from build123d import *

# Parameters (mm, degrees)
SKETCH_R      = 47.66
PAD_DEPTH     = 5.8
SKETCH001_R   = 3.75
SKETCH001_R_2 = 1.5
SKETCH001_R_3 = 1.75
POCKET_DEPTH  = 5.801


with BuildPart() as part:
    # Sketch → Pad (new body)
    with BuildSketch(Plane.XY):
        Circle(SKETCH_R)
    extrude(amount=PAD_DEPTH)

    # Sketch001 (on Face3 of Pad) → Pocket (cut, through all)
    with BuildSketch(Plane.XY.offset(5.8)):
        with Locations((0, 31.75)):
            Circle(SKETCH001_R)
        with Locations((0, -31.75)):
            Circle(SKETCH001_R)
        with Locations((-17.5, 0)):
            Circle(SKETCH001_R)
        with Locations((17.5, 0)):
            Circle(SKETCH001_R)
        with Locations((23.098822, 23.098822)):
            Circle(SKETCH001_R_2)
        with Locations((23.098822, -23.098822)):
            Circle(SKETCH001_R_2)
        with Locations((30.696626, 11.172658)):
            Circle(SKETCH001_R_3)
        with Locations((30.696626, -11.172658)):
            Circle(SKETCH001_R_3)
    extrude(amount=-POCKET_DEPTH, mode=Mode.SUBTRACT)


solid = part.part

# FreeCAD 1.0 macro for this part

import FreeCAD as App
import Part
import Sketcher

doc = App.newDocument("Part")
body = doc.addObject("PartDesign::Body", "Body")

# Sketch on XY plane
sketch1 = body.newObject("Sketcher::SketchObject", "Sketch")
sketch1.AttachmentSupport = (doc.getObject("XY_Plane"), [""])
sketch1.MapMode = "FlatFace"
sketch1.addGeometry(Part.Circle(App.Vector(0, 0, 0), App.Vector(0, 0, 1), 47.66), False)
sketch1.addConstraint(Sketcher.Constraint("Coincident", 0, 3, -1, 1))
sketch1.addConstraint(Sketcher.Constraint("Diameter", 0, 95.32))
pad1 = body.newObject("PartDesign::Pad", "Pad")
pad1.Profile = sketch1
pad1.Length = 5.8

# Sketch on XY plane
sketch2 = body.newObject("Sketcher::SketchObject", "Sketch001")
sketch2.AttachmentSupport = (doc.getObject("XY_Plane"), [""])
sketch2.MapMode = "FlatFace"
sketch2.AttachmentOffset = App.Placement(App.Vector(0, 0, 5.8), App.Rotation())
sketch2.addGeometry(Part.Circle(App.Vector(0, 31.75, 0), App.Vector(0, 0, 1), 3.75), False)
sketch2.addGeometry(Part.Circle(App.Vector(0, -31.75, 0), App.Vector(0, 0, 1), 3.75), False)
sketch2.addGeometry(Part.Circle(App.Vector(-17.5, 0, 0), App.Vector(0, 0, 1), 3.75), False)
sketch2.addGeometry(Part.Circle(App.Vector(17.5, 0, 0), App.Vector(0, 0, 1), 3.75), False)
sketch2.addGeometry(Part.Circle(App.Vector(23.098822, 23.098822, 0), App.Vector(0, 0, 1), 1.5), False)
sketch2.addGeometry(Part.Circle(App.Vector(23.098822, -23.098822, 0), App.Vector(0, 0, 1), 1.5), False)
sketch2.addGeometry(Part.Circle(App.Vector(30.696626, 11.172658, 0), App.Vector(0, 0, 1), 1.75), False)
sketch2.addGeometry(Part.Circle(App.Vector(30.696626, -11.172658, 0), App.Vector(0, 0, 1), 1.75), False)
sketch2.addConstraint(Sketcher.Constraint("Equal", 0, 1))
sketch2.addConstraint(Sketcher.Constraint("Equal", 1, 2))
sketch2.addConstraint(Sketcher.Constraint("Equal", 2, 3))
sketch2.addConstraint(Sketcher.Constraint("Equal", 4, 5))
sketch2.addConstraint(Sketcher.Constraint("Equal", 6, 7))
sketch2.addConstraint(Sketcher.Constraint("Symmetric", 0, 3, 1, 3, -1, 1))
sketch2.addConstraint(Sketcher.Constraint("Symmetric", 2, 3, 3, 3, -1, 1))
sketch2.addConstraint(Sketcher.Constraint("Symmetric", 4, 3, 5, 3, -1))
sketch2.addConstraint(Sketcher.Constraint("Symmetric", 6, 3, 7, 3, -1))
sketch2.addConstraint(Sketcher.Constraint("PointOnObject", 0, 3, -2))
sketch2.addConstraint(Sketcher.Constraint("PointOnObject", 2, 3, -1))
sketch2.addConstraint(Sketcher.Constraint("Diameter", 4, 3.0))
sketch2.addConstraint(Sketcher.Constraint("Diameter", 0, 7.5))
sketch2.addConstraint(Sketcher.Constraint("Diameter", 6, 3.5))
sketch2.addConstraint(Sketcher.Constraint("DistanceX", 2, 3, 3, 3, 35.0))
sketch2.addConstraint(Sketcher.Constraint("DistanceY", 1, 3, 0, 3, 63.5))
sketch2.addConstraint(Sketcher.Constraint("DistanceX", -1, 1, 4, 3, 23.098822))
sketch2.addConstraint(Sketcher.Constraint("DistanceY", -1, 1, 4, 3, 23.098822))
sketch2.addConstraint(Sketcher.Constraint("DistanceY", 5, 3, 6, 3, 34.27148))
sketch2.addConstraint(Sketcher.Constraint("DistanceX", -1, 1, 6, 3, 30.696626))
pocket1 = body.newObject("PartDesign::Pocket", "Pocket")
pocket1.Profile = sketch2
pocket1.Type = "ThroughAll"

doc.recompute()
